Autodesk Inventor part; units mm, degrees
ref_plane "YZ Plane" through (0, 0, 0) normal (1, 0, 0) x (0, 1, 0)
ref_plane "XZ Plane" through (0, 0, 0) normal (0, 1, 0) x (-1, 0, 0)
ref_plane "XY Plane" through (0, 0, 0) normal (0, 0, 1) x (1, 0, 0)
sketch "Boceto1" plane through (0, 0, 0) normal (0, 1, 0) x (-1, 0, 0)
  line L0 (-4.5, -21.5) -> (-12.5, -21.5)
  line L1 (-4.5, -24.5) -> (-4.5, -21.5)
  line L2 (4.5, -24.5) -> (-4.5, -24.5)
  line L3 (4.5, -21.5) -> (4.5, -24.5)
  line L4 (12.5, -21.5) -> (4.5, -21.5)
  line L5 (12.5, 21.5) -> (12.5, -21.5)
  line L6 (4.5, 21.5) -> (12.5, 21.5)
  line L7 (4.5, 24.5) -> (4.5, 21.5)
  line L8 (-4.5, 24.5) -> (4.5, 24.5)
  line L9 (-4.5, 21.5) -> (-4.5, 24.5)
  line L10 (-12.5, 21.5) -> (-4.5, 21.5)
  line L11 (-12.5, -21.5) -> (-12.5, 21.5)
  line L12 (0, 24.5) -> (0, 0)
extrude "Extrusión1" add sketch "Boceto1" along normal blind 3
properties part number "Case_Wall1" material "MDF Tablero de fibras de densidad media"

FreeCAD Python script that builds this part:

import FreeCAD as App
import Part
import Sketcher
from FreeCAD import Vector


def add_polygon(sketch, points):
    """Adds a closed chain of lines whose ends are joined by coincident constraints."""
    first, n = sketch.GeometryCount, len(points)
    for a, b in zip(points, points[1:] + points[:1]):
        sketch.addGeometry(Part.LineSegment(App.Vector(*a, 0), App.Vector(*b, 0)), False)
    for i in range(n):
        sketch.addConstraint(Sketcher.Constraint("Coincident", first + i, 2, first + (i + 1) % n, 1))

doc = App.newDocument("Part")
body = doc.addObject("PartDesign::Body", "Body")

# Sketch on XZ plane
sketch1 = body.newObject("Sketcher::SketchObject", "Sketch")
sketch1.AttachmentSupport = (doc.getObject("XZ_Plane"), [""])
sketch1.MapMode = "FlatFace"
add_polygon(sketch1, [(12.5, -21.5), (4.5, -21.5), (4.5, -24.5), (-4.5, -24.5), (-4.5, -21.5), (-12.5, -21.5), (-12.5, 21.5), (-4.5, 21.5), (-4.5, 24.5), (4.5, 24.5), (4.5, 21.5), (12.5, 21.5)])  # lines 0-11
sketch1.addConstraint(Sketcher.Constraint("Horizontal", 0))
sketch1.addConstraint(Sketcher.Constraint("Vertical", 1))
sketch1.addConstraint(Sketcher.Constraint("Horizontal", 2))
sketch1.addConstraint(Sketcher.Constraint("Vertical", 3))
sketch1.addConstraint(Sketcher.Constraint("Horizontal", 4))
sketch1.addConstraint(Sketcher.Constraint("Vertical", 5))
sketch1.addConstraint(Sketcher.Constraint("Horizontal", 6))
sketch1.addConstraint(Sketcher.Constraint("Vertical", 7))
sketch1.addConstraint(Sketcher.Constraint("Horizontal", 8))
sketch1.addConstraint(Sketcher.Constraint("Vertical", 9))
sketch1.addConstraint(Sketcher.Constraint("Horizontal", 10))
sketch1.addConstraint(Sketcher.Constraint("Vertical", 11))
sketch1.addConstraint(Sketcher.Constraint("Symmetric", 0, 2, 6, 2, -1, 1))
sketch1.addConstraint(Sketcher.Constraint("Symmetric", 2, 2, 8, 2, -1, 1))
sketch1.addConstraint(Sketcher.Constraint("Symmetric", 4, 2, 10, 2, -1, 1))
sketch1.addConstraint(Sketcher.Constraint("Symmetric", 0, 2, 3, 2, -2))
sketch1.addConstraint(Sketcher.Constraint("DistanceX", 0, 2, 0, 1, 8.0))
sketch1.addConstraint(Sketcher.Constraint("DistanceX", 2, 2, 2, 1, 9.0))
sketch1.addConstraint(Sketcher.Constraint("DistanceY", 1, 2, 1, 1, 3.0))
sketch1.addConstraint(Sketcher.Constraint("DistanceY", 5, 1, 5, 2, 43.0))
pad1 = body.newObject("PartDesign::Pad", "Pad")
pad1.Profile = sketch1
pad1.Length = 3
pad1.Reversed = True

doc.recompute()
